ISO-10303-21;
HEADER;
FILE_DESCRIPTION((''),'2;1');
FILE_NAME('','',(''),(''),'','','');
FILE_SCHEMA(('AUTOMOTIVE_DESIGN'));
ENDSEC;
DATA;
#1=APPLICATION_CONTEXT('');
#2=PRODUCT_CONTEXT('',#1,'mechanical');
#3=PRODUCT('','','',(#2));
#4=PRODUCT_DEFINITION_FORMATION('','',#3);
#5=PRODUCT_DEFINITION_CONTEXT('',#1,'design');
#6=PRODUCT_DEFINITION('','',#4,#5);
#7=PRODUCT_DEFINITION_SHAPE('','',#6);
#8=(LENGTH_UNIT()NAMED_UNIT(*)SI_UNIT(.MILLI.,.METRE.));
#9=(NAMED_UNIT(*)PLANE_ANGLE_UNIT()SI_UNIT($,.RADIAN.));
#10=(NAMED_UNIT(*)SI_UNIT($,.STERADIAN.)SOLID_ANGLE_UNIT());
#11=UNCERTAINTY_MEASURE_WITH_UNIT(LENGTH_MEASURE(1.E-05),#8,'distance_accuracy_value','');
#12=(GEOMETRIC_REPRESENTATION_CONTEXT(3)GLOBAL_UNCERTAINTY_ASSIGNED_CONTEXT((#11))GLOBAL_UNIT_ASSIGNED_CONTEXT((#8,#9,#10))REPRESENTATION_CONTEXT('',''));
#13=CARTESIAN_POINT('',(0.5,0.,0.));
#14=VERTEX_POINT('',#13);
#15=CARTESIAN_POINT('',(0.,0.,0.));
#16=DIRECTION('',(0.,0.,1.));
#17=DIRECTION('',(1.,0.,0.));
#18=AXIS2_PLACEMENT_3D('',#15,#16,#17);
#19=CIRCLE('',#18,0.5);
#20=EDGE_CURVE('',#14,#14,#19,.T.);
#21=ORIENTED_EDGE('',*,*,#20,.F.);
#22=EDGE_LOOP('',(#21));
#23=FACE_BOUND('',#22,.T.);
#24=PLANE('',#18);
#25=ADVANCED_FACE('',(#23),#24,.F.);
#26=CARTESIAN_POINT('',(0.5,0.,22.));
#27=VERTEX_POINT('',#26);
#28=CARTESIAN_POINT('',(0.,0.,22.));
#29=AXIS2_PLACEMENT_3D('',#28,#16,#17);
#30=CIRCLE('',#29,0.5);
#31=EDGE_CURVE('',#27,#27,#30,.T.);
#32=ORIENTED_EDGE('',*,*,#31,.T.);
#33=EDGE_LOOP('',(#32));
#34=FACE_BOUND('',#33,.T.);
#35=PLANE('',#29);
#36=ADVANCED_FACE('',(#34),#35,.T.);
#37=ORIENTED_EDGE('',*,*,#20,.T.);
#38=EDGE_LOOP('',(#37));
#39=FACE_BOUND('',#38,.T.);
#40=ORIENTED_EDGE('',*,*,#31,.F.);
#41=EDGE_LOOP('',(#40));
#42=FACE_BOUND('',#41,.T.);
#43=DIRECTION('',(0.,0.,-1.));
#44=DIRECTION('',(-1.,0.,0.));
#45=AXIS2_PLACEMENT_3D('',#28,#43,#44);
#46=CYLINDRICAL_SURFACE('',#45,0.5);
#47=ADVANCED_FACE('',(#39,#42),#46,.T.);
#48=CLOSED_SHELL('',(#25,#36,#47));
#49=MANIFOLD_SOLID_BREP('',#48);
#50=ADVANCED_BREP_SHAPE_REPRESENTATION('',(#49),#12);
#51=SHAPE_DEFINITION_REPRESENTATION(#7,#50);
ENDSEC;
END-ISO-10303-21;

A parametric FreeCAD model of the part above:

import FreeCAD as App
import Part
import Sketcher
from FreeCAD import Vector

doc = App.newDocument("Part")
body = doc.addObject("PartDesign::Body", "Body")

# Sketch on XY plane
sketch1 = doc.addObject("Sketcher::SketchObject", "Sketch")
body.addObject(sketch1)
sketch1.AttachmentSupport = (doc.XY_Plane, [""])
sketch1.MapMode = "FlatFace"
sketch1.addGeometry(Part.Circle(Vector(0, 0, 0), Vector(0, 0, 1), 0.5), False)
sketch1.addConstraint([
    Sketcher.Constraint("Coincident", 0, 3, -1, 1),
    Sketcher.Constraint("Diameter", 0, 1.0),
])
pad1 = doc.addObject("PartDesign::Pad", "Pad")
body.addObject(pad1)
pad1.Profile = sketch1
pad1.Length = 22

doc.recompute()
